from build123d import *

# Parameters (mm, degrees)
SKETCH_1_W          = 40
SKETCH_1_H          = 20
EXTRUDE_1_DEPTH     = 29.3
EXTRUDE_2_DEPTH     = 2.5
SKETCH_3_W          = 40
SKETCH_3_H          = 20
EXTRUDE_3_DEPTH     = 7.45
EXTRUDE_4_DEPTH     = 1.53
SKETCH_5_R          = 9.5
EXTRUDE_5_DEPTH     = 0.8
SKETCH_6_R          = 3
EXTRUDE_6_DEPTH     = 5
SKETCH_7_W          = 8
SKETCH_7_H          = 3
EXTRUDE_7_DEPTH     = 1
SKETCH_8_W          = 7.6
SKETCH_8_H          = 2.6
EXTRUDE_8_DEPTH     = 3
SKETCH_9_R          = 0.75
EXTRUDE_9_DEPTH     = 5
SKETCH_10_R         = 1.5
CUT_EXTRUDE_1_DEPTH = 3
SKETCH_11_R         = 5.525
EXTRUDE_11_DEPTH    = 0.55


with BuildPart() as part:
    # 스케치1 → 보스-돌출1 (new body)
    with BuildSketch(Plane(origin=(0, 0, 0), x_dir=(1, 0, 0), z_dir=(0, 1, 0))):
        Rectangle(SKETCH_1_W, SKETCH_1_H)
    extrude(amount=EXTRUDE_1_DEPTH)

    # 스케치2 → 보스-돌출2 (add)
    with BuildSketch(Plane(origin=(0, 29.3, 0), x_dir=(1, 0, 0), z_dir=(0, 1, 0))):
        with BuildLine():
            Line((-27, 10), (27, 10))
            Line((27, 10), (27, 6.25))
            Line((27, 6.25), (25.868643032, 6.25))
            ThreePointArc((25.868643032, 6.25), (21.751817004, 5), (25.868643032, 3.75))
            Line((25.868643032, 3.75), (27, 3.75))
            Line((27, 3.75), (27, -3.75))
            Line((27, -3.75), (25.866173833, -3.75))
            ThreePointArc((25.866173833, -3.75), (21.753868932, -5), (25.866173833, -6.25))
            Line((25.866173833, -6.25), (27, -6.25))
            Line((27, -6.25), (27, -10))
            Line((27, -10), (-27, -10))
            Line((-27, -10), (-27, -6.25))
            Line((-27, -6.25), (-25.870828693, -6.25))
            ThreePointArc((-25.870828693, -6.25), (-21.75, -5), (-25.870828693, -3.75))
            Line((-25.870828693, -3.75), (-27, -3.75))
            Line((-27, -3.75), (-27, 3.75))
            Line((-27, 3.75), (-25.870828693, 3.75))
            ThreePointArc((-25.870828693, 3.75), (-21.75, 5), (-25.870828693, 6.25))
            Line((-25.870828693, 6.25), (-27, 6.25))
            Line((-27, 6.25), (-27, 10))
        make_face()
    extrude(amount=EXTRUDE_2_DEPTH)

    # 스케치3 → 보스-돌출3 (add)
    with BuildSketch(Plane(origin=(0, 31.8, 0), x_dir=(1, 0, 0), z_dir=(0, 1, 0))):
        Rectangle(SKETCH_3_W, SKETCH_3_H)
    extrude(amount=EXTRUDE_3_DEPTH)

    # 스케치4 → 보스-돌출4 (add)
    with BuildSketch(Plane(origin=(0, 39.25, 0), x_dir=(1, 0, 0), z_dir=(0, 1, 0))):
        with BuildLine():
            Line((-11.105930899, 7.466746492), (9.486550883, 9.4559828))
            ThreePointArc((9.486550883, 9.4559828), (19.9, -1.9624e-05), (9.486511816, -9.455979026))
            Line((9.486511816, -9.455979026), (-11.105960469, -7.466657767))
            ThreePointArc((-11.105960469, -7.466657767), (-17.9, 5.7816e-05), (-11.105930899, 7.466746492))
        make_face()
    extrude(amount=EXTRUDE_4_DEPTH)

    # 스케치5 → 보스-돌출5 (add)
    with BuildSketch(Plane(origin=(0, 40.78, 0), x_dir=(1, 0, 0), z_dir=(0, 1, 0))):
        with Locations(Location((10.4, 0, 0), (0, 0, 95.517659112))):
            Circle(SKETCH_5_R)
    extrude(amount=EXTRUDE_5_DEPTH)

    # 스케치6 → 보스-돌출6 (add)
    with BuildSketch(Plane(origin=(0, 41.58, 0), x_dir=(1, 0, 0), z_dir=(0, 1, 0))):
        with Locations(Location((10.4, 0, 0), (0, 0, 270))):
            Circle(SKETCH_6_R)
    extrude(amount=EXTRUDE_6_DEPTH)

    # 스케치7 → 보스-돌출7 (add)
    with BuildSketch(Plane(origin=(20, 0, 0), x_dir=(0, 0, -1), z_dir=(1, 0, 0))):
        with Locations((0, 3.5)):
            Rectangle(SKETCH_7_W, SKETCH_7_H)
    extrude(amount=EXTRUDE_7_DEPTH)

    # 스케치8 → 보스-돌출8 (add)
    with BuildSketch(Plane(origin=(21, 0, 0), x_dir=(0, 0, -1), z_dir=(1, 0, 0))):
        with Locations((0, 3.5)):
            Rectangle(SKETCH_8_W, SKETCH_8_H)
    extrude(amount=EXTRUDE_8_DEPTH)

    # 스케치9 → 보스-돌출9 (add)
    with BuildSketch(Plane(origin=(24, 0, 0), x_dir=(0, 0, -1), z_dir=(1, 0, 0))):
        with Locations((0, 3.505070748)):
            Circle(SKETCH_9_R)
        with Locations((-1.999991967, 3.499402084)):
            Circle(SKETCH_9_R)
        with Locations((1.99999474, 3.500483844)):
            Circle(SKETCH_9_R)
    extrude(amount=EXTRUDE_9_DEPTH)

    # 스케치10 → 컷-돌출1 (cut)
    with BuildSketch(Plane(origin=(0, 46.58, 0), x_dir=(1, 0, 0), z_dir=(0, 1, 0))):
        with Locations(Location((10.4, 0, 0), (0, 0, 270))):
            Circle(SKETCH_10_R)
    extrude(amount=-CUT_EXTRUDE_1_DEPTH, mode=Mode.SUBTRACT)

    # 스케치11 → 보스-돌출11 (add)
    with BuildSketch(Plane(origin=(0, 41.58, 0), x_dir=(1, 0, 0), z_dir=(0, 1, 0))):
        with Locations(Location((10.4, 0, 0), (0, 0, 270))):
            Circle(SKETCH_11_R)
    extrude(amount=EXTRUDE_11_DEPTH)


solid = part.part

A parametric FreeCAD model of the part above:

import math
import FreeCAD as App
import Part
import Sketcher

V = App.Vector


def add_polygon(sketch, points):
    """Adds a closed chain of lines whose ends are joined by coincident constraints."""
    first, n = sketch.GeometryCount, len(points)
    for a, b in zip(points, points[1:] + points[:1]):
        sketch.addGeometry(Part.LineSegment(App.Vector(*a, 0), App.Vector(*b, 0)), False)
    for i in range(n):
        sketch.addConstraint(Sketcher.Constraint("Coincident", first + i, 2, first + (i + 1) % n, 1))

doc = App.newDocument("Part")
body = doc.addObject("PartDesign::Body", "Body")

sketch1 = doc.addObject("Sketcher::SketchObject", "Sketch")
body.addObject(sketch1)
sketch1.AttachmentSupport = (doc.XZ_Plane, [""])
sketch1.MapMode = "FlatFace"
add_polygon(sketch1, [(-20, -10), (-20, 10), (20, 10), (20, -10)])
sketch1.addConstraint(Sketcher.Constraint("Vertical", 0))
sketch1.addConstraint(Sketcher.Constraint("Horizontal", 1))
sketch1.addConstraint(Sketcher.Constraint("Vertical", 2))
sketch1.addConstraint(Sketcher.Constraint("Horizontal", 3))
sketch1.addConstraint(Sketcher.Constraint("Symmetric", 0, 2, 2, 2, -1, 1))
sketch1.addConstraint(Sketcher.Constraint("DistanceX", 1, 1, 1, 2, 40.0))
sketch1.addConstraint(Sketcher.Constraint("DistanceY", 0, 1, 0, 2, 20.0))
pad1 = doc.addObject("PartDesign::Pad", "Pad")
body.addObject(pad1)
pad1.Profile = sketch1
pad1.Length = 29.3
pad1.Reversed = True

sketch2 = doc.addObject("Sketcher::SketchObject", "Sketch001")
body.addObject(sketch2)
sketch2.AttachmentSupport = (doc.XZ_Plane, [""])
sketch2.MapMode = "FlatFace"
sketch2.AttachmentOffset = App.Placement(V(0, 0, -29.3), App.Rotation())
sketch2.addGeometry(Part.LineSegment(V(27, -10, 0), V(-27, -10, 0)), False)
sketch2.addGeometry(Part.LineSegment(V(-27, -10, 0), V(-27, -6.2, 0)), False)
sketch2.addGeometry(Part.LineSegment(V(-27, -6.2, 0), V(-25.9, -6.2, 0)), False)
sketch2.addGeometry(Part.ArcOfCircle(Part.Circle(V(-24, -5, 0), V(0, 0, 1), 2.2), math.radians(-146), math.radians(146)), False)
sketch2.addGeometry(Part.LineSegment(V(-25.9, -3.8, 0), V(-27, -3.8, 0)), False)
sketch2.addGeometry(Part.LineSegment(V(-27, -3.8, 0), V(-27, 3.8, 0)), False)
sketch2.addGeometry(Part.LineSegment(V(-27, 3.8, 0), V(-25.9, 3.8, 0)), False)
sketch2.addGeometry(Part.ArcOfCircle(Part.Circle(V(-24, 5, 0), V(0, 0, 1), 2.2), math.radians(-146), math.radians(146)), False)
sketch2.addGeometry(Part.LineSegment(V(-25.9, 6.2, 0), V(-27, 6.2, 0)), False)
sketch2.addGeometry(Part.LineSegment(V(-27, 6.2, 0), V(-27, 10, 0)), False)
sketch2.addGeometry(Part.LineSegment(V(-27, 10, 0), V(27, 10, 0)), False)
sketch2.addGeometry(Part.LineSegment(V(27, 10, 0), V(27, 6.2, 0)), False)
sketch2.addGeometry(Part.LineSegment(V(27, 6.2, 0), V(25.9, 6.2, 0)), False)
sketch2.addGeometry(Part.ArcOfCircle(Part.Circle(V(24, 5, 0), V(0, 0, 1), 2.2), math.radians(34), math.radians(326)), False)
sketch2.addGeometry(Part.LineSegment(V(25.9, 3.8, 0), V(27, 3.8, 0)), False)
sketch2.addGeometry(Part.LineSegment(V(27, 3.8, 0), V(27, -3.8, 0)), False)
sketch2.addGeometry(Part.LineSegment(V(27, -3.8, 0), V(25.9, -3.8, 0)), False)
sketch2.addGeometry(Part.ArcOfCircle(Part.Circle(V(24, -5, 0), V(0, 0, 1), 2.2), math.radians(34), math.radians(326)), False)
sketch2.addGeometry(Part.LineSegment(V(25.9, -6.2, 0), V(27, -6.2, 0)), False)
sketch2.addGeometry(Part.LineSegment(V(27, -6.2, 0), V(27, -10, 0)), False)
sketch2.addConstraint(Sketcher.Constraint("Coincident", 0, 2, 1, 1))
sketch2.addConstraint(Sketcher.Constraint("Coincident", 1, 2, 2, 1))
sketch2.addConstraint(Sketcher.Constraint("Coincident", 2, 2, 3, 1))
sketch2.addConstraint(Sketcher.Constraint("Coincident", 3, 2, 4, 1))
sketch2.addConstraint(Sketcher.Constraint("Coincident", 4, 2, 5, 1))
sketch2.addConstraint(Sketcher.Constraint("Coincident", 5, 2, 6, 1))
sketch2.addConstraint(Sketcher.Constraint("Coincident", 6, 2, 7, 1))
sketch2.addConstraint(Sketcher.Constraint("Coincident", 7, 2, 8, 1))
sketch2.addConstraint(Sketcher.Constraint("Coincident", 8, 2, 9, 1))
sketch2.addConstraint(Sketcher.Constraint("Coincident", 9, 2, 10, 1))
sketch2.addConstraint(Sketcher.Constraint("Coincident", 10, 2, 11, 1))
sketch2.addConstraint(Sketcher.Constraint("Coincident", 11, 2, 12, 1))
sketch2.addConstraint(Sketcher.Constraint("Coincident", 12, 2, 13, 1))
sketch2.addConstraint(Sketcher.Constraint("Coincident", 13, 2, 14, 1))
sketch2.addConstraint(Sketcher.Constraint("Coincident", 14, 2, 15, 1))
sketch2.addConstraint(Sketcher.Constraint("Coincident", 15, 2, 16, 1))
sketch2.addConstraint(Sketcher.Constraint("Coincident", 16, 2, 17, 1))
sketch2.addConstraint(Sketcher.Constraint("Coincident", 17, 2, 18, 1))
sketch2.addConstraint(Sketcher.Constraint("Coincident", 18, 2, 19, 1))
sketch2.addConstraint(Sketcher.Constraint("Coincident", 19, 2, 0, 1))
sketch2.addConstraint(Sketcher.Constraint("Horizontal", 0))
sketch2.addConstraint(Sketcher.Constraint("Vertical", 1))
sketch2.addConstraint(Sketcher.Constraint("Horizontal", 2))
sketch2.addConstraint(Sketcher.Constraint("Horizontal", 4))
sketch2.addConstraint(Sketcher.Constraint("Vertical", 5))
sketch2.addConstraint(Sketcher.Constraint("Horizontal", 6))
sketch2.addConstraint(Sketcher.Constraint("Horizontal", 8))
sketch2.addConstraint(Sketcher.Constraint("Vertical", 9))
sketch2.addConstraint(Sketcher.Constraint("Horizontal", 10))
sketch2.addConstraint(Sketcher.Constraint("Vertical", 11))
sketch2.addConstraint(Sketcher.Constraint("Horizontal", 12))
sketch2.addConstraint(Sketcher.Constraint("Horizontal", 14))
sketch2.addConstraint(Sketcher.Constraint("Vertical", 15))
sketch2.addConstraint(Sketcher.Constraint("Horizontal", 16))
sketch2.addConstraint(Sketcher.Constraint("Horizontal", 18))
sketch2.addConstraint(Sketcher.Constraint("Vertical", 19))
sketch2.addConstraint(Sketcher.Constraint("Equal", 3, 7))
sketch2.addConstraint(Sketcher.Constraint("Symmetric", 3, 3, 13, 3, -1, 1))
sketch2.addConstraint(Sketcher.Constraint("Symmetric", 7, 3, 17, 3, -1, 1))
sketch2.addConstraint(Sketcher.Constraint("Symmetric", 0, 2, 10, 2, -1, 1))
sketch2.addConstraint(Sketcher.Constraint("Symmetric", 4, 2, 14, 2, -1, 1))
sketch2.addConstraint(Sketcher.Constraint("Symmetric", 8, 2, 18, 2, -1, 1))
sketch2.addConstraint(Sketcher.Constraint("Symmetric", 7, 3, 13, 3, -2))
sketch2.addConstraint(Sketcher.Constraint("Symmetric", 8, 2, 11, 2, -2))
sketch2.addConstraint(Sketcher.Constraint("Horizontal", 6, 2, 13, 2))
sketch2.addConstraint(Sketcher.Constraint("Horizontal", 4, 2, 15, 2))
sketch2.addConstraint(Sketcher.Constraint("Horizontal", 2, 2, 17, 2))
sketch2.addConstraint(Sketcher.Constraint("Vertical", 2, 2, 3, 2))
sketch2.addConstraint(Sketcher.Constraint("Vertical", 1, 2, 4, 2))
sketch2.addConstraint(Sketcher.Constraint("DistanceX", 0, 2, 0, 1, 54.0))
sketch2.addConstraint(Sketcher.Constraint("Radius", 3, 2.25))
sketch2.addConstraint(Sketcher.Constraint("DistanceY", 5, 1, 5, 2, 7.5))
sketch2.addConstraint(Sketcher.Constraint("DistanceX", 3, 3, -1, 1, 24.0))
sketch2.addConstraint(Sketcher.Constraint("DistanceY", 3, 3, -1, 1, 5.0))
sketch2.addConstraint(Sketcher.Constraint("DistanceY", 0, 2, -1, 1, 10.0))
sketch2.addConstraint(Sketcher.Constraint("Radius", 13, 2.246131))
sketch2.addConstraint(Sketcher.Constraint("Radius", 17, 2.248183))
pad2 = doc.addObject("PartDesign::Pad", "Pad001")
body.addObject(pad2)
pad2.Profile = sketch2
pad2.Length = 2.5
pad2.Reversed = True

sketch3 = doc.addObject("Sketcher::SketchObject", "Sketch002")
body.addObject(sketch3)
sketch3.AttachmentSupport = (doc.XZ_Plane, [""])
sketch3.MapMode = "FlatFace"
sketch3.AttachmentOffset = App.Placement(V(0, 0, -31.8), App.Rotation())
add_polygon(sketch3, [(-20, -10), (-20, 10), (20, 10), (20, -10)])
sketch3.addConstraint(Sketcher.Constraint("Vertical", 0))
sketch3.addConstraint(Sketcher.Constraint("Horizontal", 1))
sketch3.addConstraint(Sketcher.Constraint("Vertical", 2))
sketch3.addConstraint(Sketcher.Constraint("Horizontal", 3))
sketch3.addConstraint(Sketcher.Constraint("Symmetric", 0, 2, 2, 2, -1, 1))
sketch3.addConstraint(Sketcher.Constraint("DistanceX", 1, 1, 1, 2, 40.0))
sketch3.addConstraint(Sketcher.Constraint("DistanceY", 0, 1, 0, 2, 20.0))
pad3 = doc.addObject("PartDesign::Pad", "Pad002")
body.addObject(pad3)
pad3.Profile = sketch3
pad3.Length = 7.45
pad3.Reversed = True

sketch4 = doc.addObject("Sketcher::SketchObject", "Sketch003")
body.addObject(sketch4)
sketch4.AttachmentSupport = (doc.XZ_Plane, [""])
sketch4.MapMode = "FlatFace"
sketch4.AttachmentOffset = App.Placement(V(0, 0, -39.25), App.Rotation())
sketch4.addGeometry(Part.LineSegment(V(9, -9, 0), V(-11, -7, 0)), False)
sketch4.addGeometry(Part.ArcOfCircle(Part.Circle(V(-10, 0, 0), V(0, 0, 1), 8), math.radians(95), math.radians(265)), False)
sketch4.addGeometry(Part.LineSegment(V(-11, 7, 0), V(9, 9, 0)), False)
sketch4.addGeometry(Part.ArcOfCircle(Part.Circle(V(10, 0, 0), V(0, 0, 1), 10), math.radians(-96), math.radians(96)), False)
sketch4.addConstraint(Sketcher.Constraint("Coincident", 0, 2, 1, 2))
sketch4.addConstraint(Sketcher.Constraint("Coincident", 1, 1, 2, 1))
sketch4.addConstraint(Sketcher.Constraint("Tangent", 2, 2, 3, 2))
sketch4.addConstraint(Sketcher.Constraint("Tangent", 3, 1, 0, 1))
sketch4.addConstraint(Sketcher.Constraint("PointOnObject", 3, 3, -1))
sketch4.addConstraint(Sketcher.Constraint("Equal", 0, 2))
sketch4.addConstraint(Sketcher.Constraint("Radius", 1, 7.5))
sketch4.addConstraint(Sketcher.Constraint("Radius", 3, 9.5))
sketch4.addConstraint(Sketcher.Constraint("DistanceX", 1, 3, -1, 1, 10.4))
sketch4.addConstraint(Sketcher.Constraint("DistanceX", -1, 1, 3, 3, 10.4))
sketch4.addConstraint(Sketcher.Constraint("DistanceY", 1, 3, 1, 1, 7.466701))
sketch4.addConstraint(Sketcher.Constraint("Distance", 0, 20.688339))
pad4 = doc.addObject("PartDesign::Pad", "Pad003")
body.addObject(pad4)
pad4.Profile = sketch4
pad4.Length = 1.53
pad4.Reversed = True

sketch5 = doc.addObject("Sketcher::SketchObject", "Sketch004")
body.addObject(sketch5)
sketch5.AttachmentSupport = (doc.XZ_Plane, [""])
sketch5.MapMode = "FlatFace"
sketch5.AttachmentOffset = App.Placement(V(0, 0, -40.78), App.Rotation())
sketch5.addGeometry(Part.Circle(V(10, 0, 0), V(0, 0, 1), 10), False)
sketch5.addConstraint(Sketcher.Constraint("PointOnObject", 0, 3, -1))
sketch5.addConstraint(Sketcher.Constraint("Diameter", 0, 19.0))
sketch5.addConstraint(Sketcher.Constraint("DistanceX", -1, 1, 0, 3, 10.4))
pad5 = doc.addObject("PartDesign::Pad", "Pad004")
body.addObject(pad5)
pad5.Profile = sketch5
pad5.Length = 0.8
pad5.Reversed = True

sketch6 = doc.addObject("Sketcher::SketchObject", "Sketch005")
body.addObject(sketch6)
sketch6.AttachmentSupport = (doc.XZ_Plane, [""])
sketch6.MapMode = "FlatFace"
sketch6.AttachmentOffset = App.Placement(V(0, 0, -41.58), App.Rotation())
sketch6.addGeometry(Part.Circle(V(10.4, 0, 0), V(0, 0, 1), 3), False)
sketch6.addConstraint(Sketcher.Constraint("PointOnObject", 0, 3, -1))
sketch6.addConstraint(Sketcher.Constraint("Diameter", 0, 6.0))
sketch6.addConstraint(Sketcher.Constraint("DistanceX", -1, 1, 0, 3, 10.4))
pad6 = doc.addObject("PartDesign::Pad", "Pad005")
body.addObject(pad6)
pad6.Profile = sketch6
pad6.Length = 5
pad6.Reversed = True

sketch7 = doc.addObject("Sketcher::SketchObject", "Sketch006")
body.addObject(sketch7)
sketch7.AttachmentSupport = (doc.YZ_Plane, [""])
sketch7.MapMode = "FlatFace"
sketch7.AttachmentOffset = App.Placement(V(0, 0, 20), App.Rotation())
add_polygon(sketch7, [(5, 4), (2, 4), (2, -4), (5, -4)])
sketch7.addConstraint(Sketcher.Constraint("Horizontal", 0))
sketch7.addConstraint(Sketcher.Constraint("Vertical", 1))
sketch7.addConstraint(Sketcher.Constraint("Horizontal", 2))
sketch7.addConstraint(Sketcher.Constraint("Vertical", 3))
sketch7.addConstraint(Sketcher.Constraint("DistanceX", 0, 2, 0, 1, 3.0))
sketch7.addConstraint(Sketcher.Constraint("DistanceY", 1, 2, 1, 1, 8.0))
sketch7.addConstraint(Sketcher.Constraint("DistanceX", -1, 1, 0, 2, 2.0))
sketch7.addConstraint(Sketcher.Constraint("DistanceY", -1, 1, 0, 2, 4.0))
pad7 = doc.addObject("PartDesign::Pad", "Pad006")
body.addObject(pad7)
pad7.Profile = sketch7
pad7.Length = 1

sketch8 = doc.addObject("Sketcher::SketchObject", "Sketch007")
body.addObject(sketch8)
sketch8.AttachmentSupport = (doc.YZ_Plane, [""])
sketch8.MapMode = "FlatFace"
sketch8.AttachmentOffset = App.Placement(V(0, 0, 21), App.Rotation())
add_polygon(sketch8, [(4.8, 3.8), (2.2, 3.8), (2.2, -3.8), (4.8, -3.8)])
sketch8.addConstraint(Sketcher.Constraint("Horizontal", 0))
sketch8.addConstraint(Sketcher.Constraint("Vertical", 1))
sketch8.addConstraint(Sketcher.Constraint("Horizontal", 2))
sketch8.addConstraint(Sketcher.Constraint("Vertical", 3))
sketch8.addConstraint(Sketcher.Constraint("DistanceX", 0, 2, 0, 1, 2.6))
sketch8.addConstraint(Sketcher.Constraint("DistanceY", 1, 2, 1, 1, 7.6))
sketch8.addConstraint(Sketcher.Constraint("DistanceX", -1, 1, 0, 2, 2.2))
sketch8.addConstraint(Sketcher.Constraint("DistanceY", -1, 1, 0, 2, 3.8))
pad8 = doc.addObject("PartDesign::Pad", "Pad007")
body.addObject(pad8)
pad8.Profile = sketch8
pad8.Length = 3

sketch9 = doc.addObject("Sketcher::SketchObject", "Sketch008")
body.addObject(sketch9)
sketch9.AttachmentSupport = (doc.YZ_Plane, [""])
sketch9.MapMode = "FlatFace"
sketch9.AttachmentOffset = App.Placement(V(0, 0, 24), App.Rotation())
sketch9.addGeometry(Part.Circle(V(3.5, 0, 0), V(0, 0, 1), 0.8), False)
sketch9.addGeometry(Part.Circle(V(3.5, 2, 0), V(0, 0, 1), 0.8), False)
sketch9.addGeometry(Part.Circle(V(3.5, -2, 0), V(0, 0, 1), 0.8), False)
sketch9.addConstraint(Sketcher.Constraint("Equal", 0, 1))
sketch9.addConstraint(Sketcher.Constraint("Equal", 1, 2))
sketch9.addConstraint(Sketcher.Constraint("PointOnObject", 0, 3, -1))
sketch9.addConstraint(Sketcher.Constraint("Diameter", 0, 1.5))
sketch9.addConstraint(Sketcher.Constraint("DistanceX", -1, 1, 0, 3, 3.505071))
sketch9.addConstraint(Sketcher.Constraint("DistanceY", -1, 1, 1, 3, 1.999992))
sketch9.addConstraint(Sketcher.Constraint("DistanceX", 1, 3, 0, 3, 0.005669))
sketch9.addConstraint(Sketcher.Constraint("DistanceX", 1, 3, 2, 3, 0.001082))
sketch9.addConstraint(Sketcher.Constraint("DistanceY", 2, 3, -1, 1, 1.999995))
pad9 = doc.addObject("PartDesign::Pad", "Pad008")
body.addObject(pad9)
pad9.Profile = sketch9
pad9.Length = 5

sketch10 = doc.addObject("Sketcher::SketchObject", "Sketch009")
body.addObject(sketch10)
sketch10.AttachmentSupport = (doc.XZ_Plane, [""])
sketch10.MapMode = "FlatFace"
sketch10.AttachmentOffset = App.Placement(V(0, 0, -46.58), App.Rotation())
sketch10.addGeometry(Part.Circle(V(10.4, 0, 0), V(0, 0, 1), 1.5), False)
sketch10.addConstraint(Sketcher.Constraint("PointOnObject", 0, 3, -1))
sketch10.addConstraint(Sketcher.Constraint("Diameter", 0, 3.0))
sketch10.addConstraint(Sketcher.Constraint("DistanceX", -1, 1, 0, 3, 10.4))
pocket1 = doc.addObject("PartDesign::Pocket", "Pocket")
body.addObject(pocket1)
pocket1.Profile = sketch10
pocket1.Length = 3
pocket1.Reversed = True

sketch11 = doc.addObject("Sketcher::SketchObject", "Sketch010")
body.addObject(sketch11)
sketch11.AttachmentSupport = (doc.XZ_Plane, [""])
sketch11.MapMode = "FlatFace"
sketch11.AttachmentOffset = App.Placement(V(0, 0, -41.58), App.Rotation())
sketch11.addGeometry(Part.Circle(V(10, 0, 0), V(0, 0, 1), 6), False)
sketch11.addConstraint(Sketcher.Constraint("PointOnObject", 0, 3, -1))
sketch11.addConstraint(Sketcher.Constraint("Diameter", 0, 11.05))
sketch11.addConstraint(Sketcher.Constraint("DistanceX", -1, 1, 0, 3, 10.4))
pad10 = doc.addObject("PartDesign::Pad", "Pad009")
body.addObject(pad10)
pad10.Profile = sketch11
pad10.Length = 0.55
pad10.Reversed = True

doc.recompute()
